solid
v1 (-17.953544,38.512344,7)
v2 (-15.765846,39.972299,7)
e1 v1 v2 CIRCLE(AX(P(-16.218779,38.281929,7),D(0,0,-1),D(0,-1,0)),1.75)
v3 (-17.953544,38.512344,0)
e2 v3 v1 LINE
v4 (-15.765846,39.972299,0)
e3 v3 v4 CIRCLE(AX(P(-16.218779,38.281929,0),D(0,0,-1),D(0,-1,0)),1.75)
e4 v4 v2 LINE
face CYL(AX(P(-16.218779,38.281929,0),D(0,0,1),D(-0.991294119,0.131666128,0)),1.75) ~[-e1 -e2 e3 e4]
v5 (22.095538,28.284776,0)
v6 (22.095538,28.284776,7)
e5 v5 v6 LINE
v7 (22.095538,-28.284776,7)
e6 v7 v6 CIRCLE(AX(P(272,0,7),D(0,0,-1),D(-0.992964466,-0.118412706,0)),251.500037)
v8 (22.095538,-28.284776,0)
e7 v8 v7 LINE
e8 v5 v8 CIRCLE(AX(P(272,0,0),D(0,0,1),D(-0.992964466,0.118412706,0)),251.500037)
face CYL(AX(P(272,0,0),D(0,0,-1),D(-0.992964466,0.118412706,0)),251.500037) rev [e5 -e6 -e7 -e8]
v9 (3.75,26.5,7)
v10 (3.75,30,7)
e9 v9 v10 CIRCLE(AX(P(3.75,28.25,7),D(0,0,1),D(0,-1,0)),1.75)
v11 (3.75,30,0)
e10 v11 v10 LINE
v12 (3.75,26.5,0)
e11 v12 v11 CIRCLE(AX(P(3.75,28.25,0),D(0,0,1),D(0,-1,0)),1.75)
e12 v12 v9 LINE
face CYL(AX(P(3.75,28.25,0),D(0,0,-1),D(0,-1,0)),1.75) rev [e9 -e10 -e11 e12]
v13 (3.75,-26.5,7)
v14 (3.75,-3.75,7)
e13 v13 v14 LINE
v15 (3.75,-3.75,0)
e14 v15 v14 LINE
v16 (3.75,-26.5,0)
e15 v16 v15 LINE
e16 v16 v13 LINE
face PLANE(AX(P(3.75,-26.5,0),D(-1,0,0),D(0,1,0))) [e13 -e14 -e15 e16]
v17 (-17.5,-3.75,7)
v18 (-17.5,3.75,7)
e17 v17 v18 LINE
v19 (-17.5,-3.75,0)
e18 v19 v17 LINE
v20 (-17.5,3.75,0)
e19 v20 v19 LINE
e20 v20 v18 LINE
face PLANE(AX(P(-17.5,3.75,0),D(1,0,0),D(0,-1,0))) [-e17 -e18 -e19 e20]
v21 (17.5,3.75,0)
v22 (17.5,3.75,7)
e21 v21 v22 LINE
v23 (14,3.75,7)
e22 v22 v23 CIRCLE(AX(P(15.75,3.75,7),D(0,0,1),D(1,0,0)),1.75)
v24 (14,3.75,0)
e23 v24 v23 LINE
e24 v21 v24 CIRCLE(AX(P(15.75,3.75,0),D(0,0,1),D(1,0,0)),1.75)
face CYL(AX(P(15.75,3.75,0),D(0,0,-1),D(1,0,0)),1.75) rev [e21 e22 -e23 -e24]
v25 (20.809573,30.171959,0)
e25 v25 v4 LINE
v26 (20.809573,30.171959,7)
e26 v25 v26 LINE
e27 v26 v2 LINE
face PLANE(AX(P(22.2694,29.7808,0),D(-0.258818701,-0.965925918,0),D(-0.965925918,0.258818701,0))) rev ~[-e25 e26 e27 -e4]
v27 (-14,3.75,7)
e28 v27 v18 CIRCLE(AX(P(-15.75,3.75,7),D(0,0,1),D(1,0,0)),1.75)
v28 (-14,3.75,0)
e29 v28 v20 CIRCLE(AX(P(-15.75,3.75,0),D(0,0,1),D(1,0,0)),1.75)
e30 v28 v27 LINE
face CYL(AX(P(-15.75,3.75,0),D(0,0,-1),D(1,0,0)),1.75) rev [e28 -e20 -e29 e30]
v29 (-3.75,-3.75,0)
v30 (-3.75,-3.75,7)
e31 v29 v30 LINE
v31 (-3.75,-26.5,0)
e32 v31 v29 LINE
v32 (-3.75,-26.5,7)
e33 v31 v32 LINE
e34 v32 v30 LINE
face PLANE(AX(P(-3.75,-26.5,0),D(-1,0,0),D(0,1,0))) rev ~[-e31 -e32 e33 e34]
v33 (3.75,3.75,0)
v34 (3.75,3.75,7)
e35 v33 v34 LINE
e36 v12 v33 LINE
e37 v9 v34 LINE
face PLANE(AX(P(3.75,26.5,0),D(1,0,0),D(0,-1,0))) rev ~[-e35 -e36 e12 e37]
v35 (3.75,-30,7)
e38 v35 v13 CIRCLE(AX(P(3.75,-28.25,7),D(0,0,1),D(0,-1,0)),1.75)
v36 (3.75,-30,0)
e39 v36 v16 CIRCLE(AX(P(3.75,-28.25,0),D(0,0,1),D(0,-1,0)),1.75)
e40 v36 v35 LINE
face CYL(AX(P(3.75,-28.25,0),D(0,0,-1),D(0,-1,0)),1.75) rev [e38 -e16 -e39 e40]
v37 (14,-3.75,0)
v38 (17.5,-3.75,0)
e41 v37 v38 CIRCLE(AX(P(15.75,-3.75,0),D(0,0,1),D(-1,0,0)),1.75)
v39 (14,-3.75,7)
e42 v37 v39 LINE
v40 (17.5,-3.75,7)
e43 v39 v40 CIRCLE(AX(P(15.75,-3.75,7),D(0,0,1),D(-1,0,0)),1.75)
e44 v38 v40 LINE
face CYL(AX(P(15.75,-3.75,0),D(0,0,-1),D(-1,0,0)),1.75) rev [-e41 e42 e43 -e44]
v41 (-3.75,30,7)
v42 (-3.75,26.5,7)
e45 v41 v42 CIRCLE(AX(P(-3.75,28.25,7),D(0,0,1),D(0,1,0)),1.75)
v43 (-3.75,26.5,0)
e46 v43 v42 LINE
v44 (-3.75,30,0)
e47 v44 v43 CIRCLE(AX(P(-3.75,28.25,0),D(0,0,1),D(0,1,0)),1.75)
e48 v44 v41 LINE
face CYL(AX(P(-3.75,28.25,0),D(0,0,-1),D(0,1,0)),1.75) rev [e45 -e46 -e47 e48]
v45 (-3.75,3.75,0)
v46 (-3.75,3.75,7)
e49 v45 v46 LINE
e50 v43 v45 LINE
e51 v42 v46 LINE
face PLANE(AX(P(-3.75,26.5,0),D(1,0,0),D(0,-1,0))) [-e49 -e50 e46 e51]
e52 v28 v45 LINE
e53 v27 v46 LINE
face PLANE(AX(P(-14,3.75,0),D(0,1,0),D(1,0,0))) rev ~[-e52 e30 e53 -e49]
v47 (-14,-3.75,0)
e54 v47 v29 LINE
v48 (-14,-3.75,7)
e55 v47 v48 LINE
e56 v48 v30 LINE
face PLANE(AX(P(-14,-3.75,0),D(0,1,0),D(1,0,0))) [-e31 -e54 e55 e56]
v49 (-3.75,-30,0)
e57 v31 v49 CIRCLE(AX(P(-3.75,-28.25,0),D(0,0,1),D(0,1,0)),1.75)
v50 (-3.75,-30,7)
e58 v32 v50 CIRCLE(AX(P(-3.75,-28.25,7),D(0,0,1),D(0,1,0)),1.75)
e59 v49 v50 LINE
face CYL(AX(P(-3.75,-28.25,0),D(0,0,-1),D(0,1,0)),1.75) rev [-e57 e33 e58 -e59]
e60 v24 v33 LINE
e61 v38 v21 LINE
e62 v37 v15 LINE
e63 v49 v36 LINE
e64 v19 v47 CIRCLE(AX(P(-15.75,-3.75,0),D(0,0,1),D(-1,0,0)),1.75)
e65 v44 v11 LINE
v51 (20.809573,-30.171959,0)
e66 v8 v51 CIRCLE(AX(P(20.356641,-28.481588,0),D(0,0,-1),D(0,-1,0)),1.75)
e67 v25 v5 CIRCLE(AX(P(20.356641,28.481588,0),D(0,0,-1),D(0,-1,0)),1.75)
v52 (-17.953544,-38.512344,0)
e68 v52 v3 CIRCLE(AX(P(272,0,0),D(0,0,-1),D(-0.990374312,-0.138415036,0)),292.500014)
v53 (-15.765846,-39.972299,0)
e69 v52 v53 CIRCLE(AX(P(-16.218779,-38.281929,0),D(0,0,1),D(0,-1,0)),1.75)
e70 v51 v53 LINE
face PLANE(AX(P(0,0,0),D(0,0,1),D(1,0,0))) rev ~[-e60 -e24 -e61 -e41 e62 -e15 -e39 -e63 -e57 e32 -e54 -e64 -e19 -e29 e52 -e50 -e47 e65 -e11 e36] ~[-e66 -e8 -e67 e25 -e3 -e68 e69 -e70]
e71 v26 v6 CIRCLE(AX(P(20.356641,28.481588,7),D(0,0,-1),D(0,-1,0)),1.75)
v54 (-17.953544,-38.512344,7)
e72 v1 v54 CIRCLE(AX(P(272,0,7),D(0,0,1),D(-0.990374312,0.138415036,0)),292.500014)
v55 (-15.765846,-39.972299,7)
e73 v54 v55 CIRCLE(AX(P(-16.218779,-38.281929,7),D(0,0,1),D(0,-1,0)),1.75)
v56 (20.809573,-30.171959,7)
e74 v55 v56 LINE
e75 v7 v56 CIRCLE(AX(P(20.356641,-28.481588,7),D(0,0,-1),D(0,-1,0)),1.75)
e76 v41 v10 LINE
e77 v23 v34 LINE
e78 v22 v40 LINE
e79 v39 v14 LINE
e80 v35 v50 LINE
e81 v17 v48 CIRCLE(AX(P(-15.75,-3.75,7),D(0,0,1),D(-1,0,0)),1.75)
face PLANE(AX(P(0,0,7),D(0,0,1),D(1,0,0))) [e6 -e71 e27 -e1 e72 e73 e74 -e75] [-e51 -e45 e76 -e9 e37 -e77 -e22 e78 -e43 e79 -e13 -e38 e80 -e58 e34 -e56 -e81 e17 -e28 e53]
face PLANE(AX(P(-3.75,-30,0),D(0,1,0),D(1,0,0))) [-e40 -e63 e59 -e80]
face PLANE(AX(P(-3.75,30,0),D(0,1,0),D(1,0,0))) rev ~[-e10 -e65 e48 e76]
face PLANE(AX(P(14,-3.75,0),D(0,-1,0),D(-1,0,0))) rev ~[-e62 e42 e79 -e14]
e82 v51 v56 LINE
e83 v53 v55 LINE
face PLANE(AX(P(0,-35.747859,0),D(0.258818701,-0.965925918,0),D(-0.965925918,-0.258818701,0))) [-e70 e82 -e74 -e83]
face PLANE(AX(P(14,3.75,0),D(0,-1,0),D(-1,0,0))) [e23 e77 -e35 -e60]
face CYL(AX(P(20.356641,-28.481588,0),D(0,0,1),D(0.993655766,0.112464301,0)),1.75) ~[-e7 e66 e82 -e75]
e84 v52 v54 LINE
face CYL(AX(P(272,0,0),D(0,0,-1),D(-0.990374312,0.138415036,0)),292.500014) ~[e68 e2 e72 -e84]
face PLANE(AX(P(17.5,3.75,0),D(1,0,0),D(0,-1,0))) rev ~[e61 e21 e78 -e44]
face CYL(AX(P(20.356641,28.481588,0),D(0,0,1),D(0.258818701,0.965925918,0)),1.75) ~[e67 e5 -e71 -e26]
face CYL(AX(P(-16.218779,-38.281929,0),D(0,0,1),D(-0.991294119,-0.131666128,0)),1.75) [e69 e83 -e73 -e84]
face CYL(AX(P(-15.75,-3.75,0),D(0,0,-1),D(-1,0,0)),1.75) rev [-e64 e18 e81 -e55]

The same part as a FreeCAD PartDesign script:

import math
import FreeCAD as App
import Part
import Sketcher


def edges_at(feature, points):
    """Names of the edges that pass closest to the given points."""
    edges = feature.Shape.Edges
    near = lambda p: min(range(len(edges)), key=lambda i: edges[i].distToShape(Part.Vertex(*p))[0])
    return sorted({f"Edge{near(p) + 1}" for p in points})

doc = App.newDocument("Part")
body = doc.addObject("PartDesign::Body", "Body")

sketch1 = body.newObject("Sketcher::SketchObject", "Sketch")
sketch1.AttachmentSupport = (doc.getObject("XY_Plane"), [""])
sketch1.MapMode = "FlatFace"
sketch1.addGeometry([
    Part.ArcOfCircle(Part.Circle(App.Vector(272, 0, 0), App.Vector(0, 0, 1), 292.500014), math.radians(172.043858), math.radians(187.956142)),
    Part.LineSegment(App.Vector(-17.6845, -40.4864, 0), App.Vector(22.2694, -29.7808, 0)),
    Part.ArcOfCircle(Part.Circle(App.Vector(272, 0, 0), App.Vector(0, 0, 1), 251.500037), math.radians(173.199496), math.radians(186.800504)),
    Part.LineSegment(App.Vector(22.2694, 29.7808, 0), App.Vector(-17.6845, 40.4864, 0)),
    Part.ArcOfCircle(Part.Circle(App.Vector(-3.75, 28.25, 0), App.Vector(0, 0, 1), 1.75), math.radians(90), math.radians(270)),
    Part.LineSegment(App.Vector(-3.75, 30, 0), App.Vector(3.75, 30, 0)),
    Part.ArcOfCircle(Part.Circle(App.Vector(3.75, 28.25, 0), App.Vector(0, 0, 1), 1.75), math.radians(-90), math.radians(90)),
    Part.LineSegment(App.Vector(3.75, 26.5, 0), App.Vector(3.75, 3.75, 0)),
    Part.LineSegment(App.Vector(3.75, 3.75, 0), App.Vector(14, 3.75, 0)),
    Part.ArcOfCircle(Part.Circle(App.Vector(15.75, 3.75, 0), App.Vector(0, 0, 1), 1.75), math.radians(0), math.radians(180)),
    Part.LineSegment(App.Vector(17.5, 3.75, 0), App.Vector(17.5, -3.75, 0)),
    Part.ArcOfCircle(Part.Circle(App.Vector(15.75, -3.75, 0), App.Vector(0, 0, 1), 1.75), math.radians(180), math.radians(360)),
    Part.LineSegment(App.Vector(14, -3.75, 0), App.Vector(3.75, -3.75, 0)),
    Part.LineSegment(App.Vector(3.75, -3.75, 0), App.Vector(3.75, -26.5, 0)),
    Part.ArcOfCircle(Part.Circle(App.Vector(3.75, -28.25, 0), App.Vector(0, 0, 1), 1.75), math.radians(-90), math.radians(90)),
    Part.LineSegment(App.Vector(3.75, -30, 0), App.Vector(-3.75, -30, 0)),
    Part.ArcOfCircle(Part.Circle(App.Vector(-3.75, -28.25, 0), App.Vector(0, 0, 1), 1.75), math.radians(90), math.radians(270)),
    Part.LineSegment(App.Vector(-3.75, -26.5, 0), App.Vector(-3.75, -3.75, 0)),
    Part.LineSegment(App.Vector(-3.75, -3.75, 0), App.Vector(-14, -3.75, 0)),
    Part.ArcOfCircle(Part.Circle(App.Vector(-15.75, -3.75, 0), App.Vector(0, 0, 1), 1.75), math.radians(180), math.radians(360)),
    Part.LineSegment(App.Vector(-17.5, -3.75, 0), App.Vector(-17.5, 3.75, 0)),
    Part.ArcOfCircle(Part.Circle(App.Vector(-15.75, 3.75, 0), App.Vector(0, 0, 1), 1.75), math.radians(0), math.radians(180)),
    Part.LineSegment(App.Vector(-14, 3.75, 0), App.Vector(-3.75, 3.75, 0)),
    Part.LineSegment(App.Vector(-3.75, 3.75, 0), App.Vector(-3.75, 26.5, 0)),
], False)
sketch1.addConstraint([
    Sketcher.Constraint("Coincident", 0, 2, 1, 1),
    Sketcher.Constraint("Coincident", 1, 2, 2, 2),
    Sketcher.Constraint("Coincident", 2, 1, 3, 1),
    Sketcher.Constraint("Coincident", 3, 2, 0, 1),
    Sketcher.Constraint("Coincident", 4, 1, 5, 1),
    Sketcher.Constraint("Coincident", 5, 2, 6, 2),
    Sketcher.Constraint("Coincident", 6, 1, 7, 1),
    Sketcher.Constraint("Coincident", 7, 2, 8, 1),
    Sketcher.Constraint("Coincident", 8, 2, 9, 2),
    Sketcher.Constraint("Coincident", 9, 1, 10, 1),
    Sketcher.Constraint("Coincident", 10, 2, 11, 2),
    Sketcher.Constraint("Coincident", 11, 1, 12, 1),
    Sketcher.Constraint("Coincident", 12, 2, 13, 1),
    Sketcher.Constraint("Coincident", 13, 2, 14, 2),
    Sketcher.Constraint("Coincident", 14, 1, 15, 1),
    Sketcher.Constraint("Coincident", 15, 2, 16, 2),
    Sketcher.Constraint("Coincident", 16, 1, 17, 1),
    Sketcher.Constraint("Coincident", 17, 2, 18, 1),
    Sketcher.Constraint("Coincident", 18, 2, 19, 2),
    Sketcher.Constraint("Coincident", 19, 1, 20, 1),
    Sketcher.Constraint("Coincident", 20, 2, 21, 2),
    Sketcher.Constraint("Coincident", 21, 1, 22, 1),
    Sketcher.Constraint("Coincident", 22, 2, 23, 1),
    Sketcher.Constraint("Coincident", 23, 2, 4, 2),
    Sketcher.Constraint("Horizontal", 5),
    Sketcher.Constraint("Vertical", 7),
    Sketcher.Constraint("Horizontal", 8),
    Sketcher.Constraint("Vertical", 10),
    Sketcher.Constraint("Horizontal", 12),
    Sketcher.Constraint("Vertical", 13),
    Sketcher.Constraint("Horizontal", 15),
    Sketcher.Constraint("Vertical", 17),
    Sketcher.Constraint("Horizontal", 18),
    Sketcher.Constraint("Vertical", 20),
    Sketcher.Constraint("Horizontal", 22),
    Sketcher.Constraint("Vertical", 23),
    Sketcher.Constraint("Coincident", 2, 3, 0, 3),
    Sketcher.Constraint("PointOnObject", 0, 3, -1),
    Sketcher.Constraint("Radius", 0, 292.5),
    Sketcher.Constraint("Radius", 4, 1.75),
    Sketcher.Constraint("Radius", 6, 1.75),
    Sketcher.Constraint("Radius", 9, 1.75),
    Sketcher.Constraint("Radius", 11, 1.75),
    Sketcher.Constraint("Radius", 14, 1.75),
    Sketcher.Constraint("Radius", 16, 1.75),
    Sketcher.Constraint("Radius", 19, 1.75),
    Sketcher.Constraint("Radius", 21, 1.75),
    Sketcher.Constraint("DistanceX", 5, 1, 5, 2, 7.5),
    Sketcher.Constraint("DistanceX", 15, 2, 15, 1, 7.5),
    Sketcher.Constraint("DistanceY", 10, 2, 10, 1, 7.5),
    Sketcher.Constraint("DistanceY", 20, 1, 20, 2, 7.5),
    Sketcher.Constraint("Radius", 2, 251.5),
    Sketcher.Constraint("DistanceX", 4, 3, 6, 3, 7.5),
    Sketcher.Constraint("DistanceY", 11, 3, 9, 3, 7.5),
    Sketcher.Constraint("DistanceX", 4, 3, 14, 3, 7.5),
    Sketcher.Constraint("DistanceX", 16, 3, 14, 3, 7.5),
    Sketcher.Constraint("DistanceY", 19, 3, 9, 3, 7.5),
    Sketcher.Constraint("DistanceY", 19, 3, 21, 3, 7.5),
    Sketcher.Constraint("DistanceX", 4, 1, 6, 3, 7.5),
    Sketcher.Constraint("DistanceX", 4, 3, 6, 1, 7.5),
    Sketcher.Constraint("DistanceY", 11, 3, 7, 2, 7.5),
    Sketcher.Constraint("DistanceY", 11, 3, 9, 1, 7.5),
    Sketcher.Constraint("DistanceY", 11, 1, 8, 2, 7.5),
    Sketcher.Constraint("DistanceX", 16, 3, 13, 2, 7.5),
    Sketcher.Constraint("DistanceX", 16, 3, 14, 1, 7.5),
    Sketcher.Constraint("DistanceX", 16, 1, 13, 2, 7.5),
    Sketcher.Constraint("DistanceY", 17, 2, 7, 2, 7.5),
    Sketcher.Constraint("DistanceY", 19, 1, 21, 3, 7.5),
    Sketcher.Constraint("DistanceY", 18, 2, 21, 1, 7.5),
    Sketcher.Constraint("DistanceX", 22, 2, 7, 2, 7.5),
    Sketcher.Constraint("DistanceX", -1, 1, 0, 3, 272.0),
    Sketcher.Constraint("DistanceY", -1, 1, 4, 1, 30.0),
    Sketcher.Constraint("DistanceX", -1, 1, 8, 2, 14.0),
    Sketcher.Constraint("DistanceY", 14, 1, -1, 1, 30.0),
    Sketcher.Constraint("DistanceX", 18, 2, -1, 1, 14.0),
    Sketcher.Constraint("DistanceX", 6, 3, 9, 3, 12.0),
    Sketcher.Constraint("DistanceY", 11, 3, 6, 3, 32.0),
    Sketcher.Constraint("DistanceX", 0, 2, 1, 2, 39.954),
    Sketcher.Constraint("DistanceX", 3, 2, 2, 1, 39.954),
    Sketcher.Constraint("Distance", 1, 41.3633),
    Sketcher.Constraint("Distance", 3, 41.3633),
])
pad1 = body.newObject("PartDesign::Pad", "Pad")
pad1.Profile = sketch1
pad1.Length = 7
doc.recompute()

fillet = body.newObject("PartDesign::Fillet", "Fillet")
fillet.Base = (pad1, edges_at(pad1, [
    (-17.684, -40.486, 3.5),
    (22.269, -29.781, 3.5),
    (22.269, 29.781, 3.5),
    (-17.684, 40.486, 3.5),
]))
fillet.Radius = 1.75

doc.recompute()
